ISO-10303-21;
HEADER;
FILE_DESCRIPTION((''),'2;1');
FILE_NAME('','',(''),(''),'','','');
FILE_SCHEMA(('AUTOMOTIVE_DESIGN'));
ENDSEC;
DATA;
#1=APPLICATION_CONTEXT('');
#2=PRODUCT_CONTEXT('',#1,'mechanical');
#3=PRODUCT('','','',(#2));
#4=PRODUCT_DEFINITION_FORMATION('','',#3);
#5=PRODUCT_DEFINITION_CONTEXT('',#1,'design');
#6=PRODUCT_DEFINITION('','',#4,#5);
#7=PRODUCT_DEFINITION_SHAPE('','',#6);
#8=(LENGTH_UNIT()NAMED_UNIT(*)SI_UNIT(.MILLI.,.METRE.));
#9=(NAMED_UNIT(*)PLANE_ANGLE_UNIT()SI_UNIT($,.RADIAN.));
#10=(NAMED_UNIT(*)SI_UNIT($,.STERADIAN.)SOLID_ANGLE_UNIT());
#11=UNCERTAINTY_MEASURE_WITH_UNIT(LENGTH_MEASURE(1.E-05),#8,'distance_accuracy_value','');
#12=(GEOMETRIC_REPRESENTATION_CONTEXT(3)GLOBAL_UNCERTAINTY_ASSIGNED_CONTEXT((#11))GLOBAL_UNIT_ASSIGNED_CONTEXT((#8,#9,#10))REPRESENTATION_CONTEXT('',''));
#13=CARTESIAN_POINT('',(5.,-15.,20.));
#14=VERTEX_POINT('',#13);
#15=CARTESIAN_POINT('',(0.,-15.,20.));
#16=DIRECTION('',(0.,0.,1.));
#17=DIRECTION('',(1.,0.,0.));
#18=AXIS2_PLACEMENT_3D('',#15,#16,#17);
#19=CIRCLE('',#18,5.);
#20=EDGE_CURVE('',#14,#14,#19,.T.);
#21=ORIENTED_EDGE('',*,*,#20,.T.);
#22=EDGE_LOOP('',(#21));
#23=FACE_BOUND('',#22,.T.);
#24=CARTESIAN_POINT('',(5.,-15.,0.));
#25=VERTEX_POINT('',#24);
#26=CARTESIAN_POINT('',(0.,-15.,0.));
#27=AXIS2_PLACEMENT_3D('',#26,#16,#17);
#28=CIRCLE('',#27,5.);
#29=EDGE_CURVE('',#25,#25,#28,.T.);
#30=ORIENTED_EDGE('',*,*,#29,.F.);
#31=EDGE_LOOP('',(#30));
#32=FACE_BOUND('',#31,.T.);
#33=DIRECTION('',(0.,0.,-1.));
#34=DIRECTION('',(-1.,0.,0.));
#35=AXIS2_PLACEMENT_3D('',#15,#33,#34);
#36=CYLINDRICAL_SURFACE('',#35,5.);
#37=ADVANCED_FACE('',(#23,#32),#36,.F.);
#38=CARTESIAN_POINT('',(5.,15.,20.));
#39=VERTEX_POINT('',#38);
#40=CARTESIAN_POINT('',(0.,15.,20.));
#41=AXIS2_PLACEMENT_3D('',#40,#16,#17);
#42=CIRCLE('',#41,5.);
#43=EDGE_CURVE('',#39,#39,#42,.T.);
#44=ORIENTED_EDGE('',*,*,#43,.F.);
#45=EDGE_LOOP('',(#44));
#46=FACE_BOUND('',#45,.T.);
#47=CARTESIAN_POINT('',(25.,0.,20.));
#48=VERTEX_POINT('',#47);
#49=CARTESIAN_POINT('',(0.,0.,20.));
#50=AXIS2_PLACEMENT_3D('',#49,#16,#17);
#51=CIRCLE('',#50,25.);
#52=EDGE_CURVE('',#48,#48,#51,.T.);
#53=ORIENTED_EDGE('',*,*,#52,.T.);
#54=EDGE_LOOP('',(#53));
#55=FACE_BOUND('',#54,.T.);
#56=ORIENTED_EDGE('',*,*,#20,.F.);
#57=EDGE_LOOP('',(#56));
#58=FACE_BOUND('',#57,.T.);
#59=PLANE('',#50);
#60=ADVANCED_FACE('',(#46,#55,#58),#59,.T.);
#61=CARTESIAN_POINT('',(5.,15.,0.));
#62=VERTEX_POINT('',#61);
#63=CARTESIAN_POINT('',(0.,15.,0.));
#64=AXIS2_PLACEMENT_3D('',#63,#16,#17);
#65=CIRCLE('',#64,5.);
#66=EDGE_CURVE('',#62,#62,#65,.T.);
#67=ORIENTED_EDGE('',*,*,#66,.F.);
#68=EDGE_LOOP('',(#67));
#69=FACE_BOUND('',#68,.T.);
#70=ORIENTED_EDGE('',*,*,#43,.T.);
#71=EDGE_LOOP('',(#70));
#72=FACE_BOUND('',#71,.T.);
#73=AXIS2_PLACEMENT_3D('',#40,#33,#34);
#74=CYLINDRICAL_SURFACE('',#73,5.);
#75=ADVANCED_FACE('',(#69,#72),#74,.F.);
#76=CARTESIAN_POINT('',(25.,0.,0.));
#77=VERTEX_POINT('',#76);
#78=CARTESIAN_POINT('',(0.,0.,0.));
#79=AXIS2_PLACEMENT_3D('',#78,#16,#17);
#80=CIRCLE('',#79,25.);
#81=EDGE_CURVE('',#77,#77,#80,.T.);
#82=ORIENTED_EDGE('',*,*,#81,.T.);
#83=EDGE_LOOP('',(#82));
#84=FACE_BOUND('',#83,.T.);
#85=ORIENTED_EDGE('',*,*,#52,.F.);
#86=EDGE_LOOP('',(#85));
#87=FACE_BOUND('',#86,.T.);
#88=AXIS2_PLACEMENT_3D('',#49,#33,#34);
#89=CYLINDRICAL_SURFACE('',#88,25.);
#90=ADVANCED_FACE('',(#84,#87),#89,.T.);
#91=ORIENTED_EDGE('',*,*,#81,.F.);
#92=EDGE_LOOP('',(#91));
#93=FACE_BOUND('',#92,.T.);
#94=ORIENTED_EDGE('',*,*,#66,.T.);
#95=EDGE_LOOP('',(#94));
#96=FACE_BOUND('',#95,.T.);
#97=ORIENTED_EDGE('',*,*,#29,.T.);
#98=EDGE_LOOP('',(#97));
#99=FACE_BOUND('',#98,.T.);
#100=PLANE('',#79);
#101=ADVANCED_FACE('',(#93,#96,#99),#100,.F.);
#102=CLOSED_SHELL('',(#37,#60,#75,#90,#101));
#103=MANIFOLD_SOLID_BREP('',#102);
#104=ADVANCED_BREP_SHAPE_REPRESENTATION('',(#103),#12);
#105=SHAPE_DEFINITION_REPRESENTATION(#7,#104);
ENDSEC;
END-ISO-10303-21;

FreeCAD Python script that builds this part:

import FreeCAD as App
import Part
import Sketcher

V = App.Vector
Q = App.Units.Quantity

doc = App.newDocument("Part")
body = doc.addObject("PartDesign::Body", "Body")

# Sketch on XY plane
sketch1 = body.newObject("Sketcher::SketchObject", "Sketch")
sketch1.AttachmentSupport = (doc.getObject("XY_Plane"), [""])
sketch1.MapMode = "FlatFace"
sketch1.addGeometry(Part.Circle(V(0, 0, 0), V(0, 0, 1), 25), False)
sketch1.addGeometry(Part.Circle(V(0, -15, 0), V(0, 0, 1), 5), False)
sketch1.addGeometry(Part.Circle(V(0, 15, 0), V(0, 0, 1), 5), False)
sketch1.addConstraint(Sketcher.Constraint("Coincident", 0, 3, -1, 1))
sketch1.addConstraint(Sketcher.Constraint("Equal", 1, 2))
sketch1.addConstraint(Sketcher.Constraint("Symmetric", 1, 3, 2, 3, -1, 1))
sketch1.addConstraint(Sketcher.Constraint("PointOnObject", 1, 3, -2))
sketch1.addConstraint(Sketcher.Constraint("Diameter", 0, Q("50 mm")))
sketch1.addConstraint(Sketcher.Constraint("Diameter", 1, Q("10 mm")))
sketch1.addConstraint(Sketcher.Constraint("DistanceY", 1, 3, -1, 1, Q("15 mm")))
pad1 = body.newObject("PartDesign::Pad", "Pad")
pad1.Profile = sketch1
pad1.Length = 20

doc.recompute()
